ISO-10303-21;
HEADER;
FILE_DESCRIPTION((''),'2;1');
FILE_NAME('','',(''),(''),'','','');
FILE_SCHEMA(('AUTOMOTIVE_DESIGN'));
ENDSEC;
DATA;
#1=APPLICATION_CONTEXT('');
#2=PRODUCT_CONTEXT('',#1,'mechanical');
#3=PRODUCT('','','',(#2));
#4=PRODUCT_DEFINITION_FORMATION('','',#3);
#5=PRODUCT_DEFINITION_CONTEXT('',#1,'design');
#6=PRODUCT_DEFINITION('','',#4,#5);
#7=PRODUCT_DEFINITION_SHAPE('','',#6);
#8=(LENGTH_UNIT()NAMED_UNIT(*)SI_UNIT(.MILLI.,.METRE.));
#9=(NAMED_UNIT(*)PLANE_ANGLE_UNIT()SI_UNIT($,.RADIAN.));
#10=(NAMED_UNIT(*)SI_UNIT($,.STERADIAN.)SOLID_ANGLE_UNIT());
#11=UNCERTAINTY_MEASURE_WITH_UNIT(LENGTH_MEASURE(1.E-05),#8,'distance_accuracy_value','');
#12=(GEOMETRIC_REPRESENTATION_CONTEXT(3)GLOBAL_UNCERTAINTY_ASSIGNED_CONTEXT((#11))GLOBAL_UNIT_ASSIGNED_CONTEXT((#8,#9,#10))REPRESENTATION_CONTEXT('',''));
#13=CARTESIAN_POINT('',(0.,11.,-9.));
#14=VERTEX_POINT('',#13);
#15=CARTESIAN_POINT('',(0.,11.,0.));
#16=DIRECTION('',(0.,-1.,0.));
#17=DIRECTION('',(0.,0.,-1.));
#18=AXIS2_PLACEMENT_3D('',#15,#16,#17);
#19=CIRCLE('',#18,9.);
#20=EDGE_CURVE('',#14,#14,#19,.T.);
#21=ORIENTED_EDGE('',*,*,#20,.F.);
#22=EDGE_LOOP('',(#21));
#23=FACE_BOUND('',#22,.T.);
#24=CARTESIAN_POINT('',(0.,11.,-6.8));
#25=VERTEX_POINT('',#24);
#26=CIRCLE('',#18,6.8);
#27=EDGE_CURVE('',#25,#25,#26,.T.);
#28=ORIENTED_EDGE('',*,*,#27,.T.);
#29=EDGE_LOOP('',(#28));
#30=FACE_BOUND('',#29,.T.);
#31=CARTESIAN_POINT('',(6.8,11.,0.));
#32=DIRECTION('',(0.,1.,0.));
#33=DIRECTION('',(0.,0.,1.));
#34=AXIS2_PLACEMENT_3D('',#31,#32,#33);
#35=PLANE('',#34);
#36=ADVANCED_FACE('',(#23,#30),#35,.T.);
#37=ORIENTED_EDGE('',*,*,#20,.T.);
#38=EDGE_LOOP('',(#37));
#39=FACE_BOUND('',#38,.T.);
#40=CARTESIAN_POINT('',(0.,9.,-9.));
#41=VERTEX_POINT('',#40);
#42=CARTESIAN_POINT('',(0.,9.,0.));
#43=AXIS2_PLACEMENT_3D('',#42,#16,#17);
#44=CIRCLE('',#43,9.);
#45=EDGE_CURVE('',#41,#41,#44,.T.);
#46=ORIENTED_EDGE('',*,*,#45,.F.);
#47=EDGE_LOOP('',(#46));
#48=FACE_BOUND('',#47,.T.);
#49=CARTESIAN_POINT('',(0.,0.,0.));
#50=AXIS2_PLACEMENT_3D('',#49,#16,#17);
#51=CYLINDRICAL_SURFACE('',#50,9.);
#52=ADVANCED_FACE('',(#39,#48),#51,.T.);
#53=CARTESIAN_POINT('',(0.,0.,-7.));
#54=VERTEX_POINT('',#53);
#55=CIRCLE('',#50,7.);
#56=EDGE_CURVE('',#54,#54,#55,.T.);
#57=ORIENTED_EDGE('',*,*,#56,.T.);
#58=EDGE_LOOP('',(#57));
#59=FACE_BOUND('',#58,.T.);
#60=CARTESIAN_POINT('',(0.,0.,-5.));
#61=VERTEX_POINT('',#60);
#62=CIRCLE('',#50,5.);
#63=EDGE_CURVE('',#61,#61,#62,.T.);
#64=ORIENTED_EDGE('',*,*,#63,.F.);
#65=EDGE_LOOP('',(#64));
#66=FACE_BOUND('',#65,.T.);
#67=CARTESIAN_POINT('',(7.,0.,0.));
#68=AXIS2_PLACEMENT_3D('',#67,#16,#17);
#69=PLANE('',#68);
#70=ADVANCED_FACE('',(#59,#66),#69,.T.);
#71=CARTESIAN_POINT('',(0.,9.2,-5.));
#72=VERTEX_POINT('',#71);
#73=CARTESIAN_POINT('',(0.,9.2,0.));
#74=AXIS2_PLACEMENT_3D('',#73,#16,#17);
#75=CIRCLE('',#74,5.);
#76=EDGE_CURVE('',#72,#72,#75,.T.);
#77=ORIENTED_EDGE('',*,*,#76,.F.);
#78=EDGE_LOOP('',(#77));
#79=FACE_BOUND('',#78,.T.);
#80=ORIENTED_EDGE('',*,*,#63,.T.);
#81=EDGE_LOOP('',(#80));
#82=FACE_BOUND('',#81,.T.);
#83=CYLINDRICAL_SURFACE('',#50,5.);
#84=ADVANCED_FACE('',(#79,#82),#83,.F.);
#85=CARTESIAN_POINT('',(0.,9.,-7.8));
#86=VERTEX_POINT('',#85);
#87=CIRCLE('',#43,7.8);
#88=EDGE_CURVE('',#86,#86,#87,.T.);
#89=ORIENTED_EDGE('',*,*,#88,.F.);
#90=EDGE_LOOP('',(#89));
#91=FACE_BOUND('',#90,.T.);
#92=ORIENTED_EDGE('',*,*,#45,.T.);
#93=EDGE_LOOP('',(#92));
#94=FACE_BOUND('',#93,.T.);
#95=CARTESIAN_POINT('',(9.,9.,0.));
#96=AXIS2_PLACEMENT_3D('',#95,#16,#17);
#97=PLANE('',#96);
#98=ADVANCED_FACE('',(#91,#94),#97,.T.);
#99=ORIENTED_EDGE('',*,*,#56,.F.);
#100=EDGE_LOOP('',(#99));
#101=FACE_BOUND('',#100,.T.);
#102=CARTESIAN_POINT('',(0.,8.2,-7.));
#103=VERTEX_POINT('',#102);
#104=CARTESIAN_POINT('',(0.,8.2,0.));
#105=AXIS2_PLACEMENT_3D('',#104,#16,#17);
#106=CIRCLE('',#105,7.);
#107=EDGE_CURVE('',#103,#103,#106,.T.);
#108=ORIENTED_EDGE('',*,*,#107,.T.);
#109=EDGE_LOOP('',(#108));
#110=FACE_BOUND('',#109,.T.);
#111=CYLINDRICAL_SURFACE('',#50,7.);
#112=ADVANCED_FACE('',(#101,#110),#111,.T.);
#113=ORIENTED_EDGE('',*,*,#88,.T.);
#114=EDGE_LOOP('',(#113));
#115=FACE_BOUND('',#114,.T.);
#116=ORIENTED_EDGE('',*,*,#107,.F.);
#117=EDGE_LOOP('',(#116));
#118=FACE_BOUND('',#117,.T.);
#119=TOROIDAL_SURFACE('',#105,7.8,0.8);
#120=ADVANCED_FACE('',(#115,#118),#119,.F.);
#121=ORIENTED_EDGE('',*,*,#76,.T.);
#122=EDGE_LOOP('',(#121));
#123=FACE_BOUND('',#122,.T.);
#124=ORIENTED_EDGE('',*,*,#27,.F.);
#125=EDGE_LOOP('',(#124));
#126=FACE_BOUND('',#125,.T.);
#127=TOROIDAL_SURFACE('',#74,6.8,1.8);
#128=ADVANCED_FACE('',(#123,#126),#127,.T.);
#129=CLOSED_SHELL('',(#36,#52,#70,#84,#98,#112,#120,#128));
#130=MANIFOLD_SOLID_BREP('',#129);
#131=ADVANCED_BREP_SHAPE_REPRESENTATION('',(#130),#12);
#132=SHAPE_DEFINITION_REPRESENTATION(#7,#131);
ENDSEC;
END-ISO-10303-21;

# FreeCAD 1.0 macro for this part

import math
import FreeCAD as App
import Part
import Sketcher

doc = App.newDocument("Part")
body = doc.addObject("PartDesign::Body", "Body")

# Sketch on XY plane
sketch1 = body.newObject("Sketcher::SketchObject", "Sketch")
sketch1.AttachmentSupport = (doc.getObject("XY_Plane"), [""])
sketch1.MapMode = "FlatFace"
sketch1.addGeometry(Part.LineSegment(App.Vector(5, 9.2, 0), App.Vector(5, 0, 0)), False)
sketch1.addGeometry(Part.LineSegment(App.Vector(5, 0, 0), App.Vector(7, 0, 0)), False)
sketch1.addGeometry(Part.LineSegment(App.Vector(7, 0, 0), App.Vector(7, 8.2, 0)), False)
sketch1.addGeometry(Part.ArcOfCircle(Part.Circle(App.Vector(7.8, 8.2, 0), App.Vector(0, 0, 1), 0.8), math.radians(90), math.radians(180)), False)
sketch1.addGeometry(Part.LineSegment(App.Vector(7.8, 9, 0), App.Vector(9, 9, 0)), False)
sketch1.addGeometry(Part.LineSegment(App.Vector(9, 9, 0), App.Vector(9, 11, 0)), False)
sketch1.addGeometry(Part.LineSegment(App.Vector(9, 11, 0), App.Vector(6.8, 11, 0)), False)
sketch1.addGeometry(Part.ArcOfCircle(Part.Circle(App.Vector(6.8, 9.2, 0), App.Vector(0, 0, 1), 1.8), math.radians(90), math.radians(180)), False)
sketch1.addConstraint(Sketcher.Constraint("Coincident", 0, 2, 1, 1))
sketch1.addConstraint(Sketcher.Constraint("Coincident", 1, 2, 2, 1))
sketch1.addConstraint(Sketcher.Constraint("Tangent", 2, 2, 3, 2))
sketch1.addConstraint(Sketcher.Constraint("Tangent", 3, 1, 4, 1))
sketch1.addConstraint(Sketcher.Constraint("Coincident", 4, 2, 5, 1))
sketch1.addConstraint(Sketcher.Constraint("Coincident", 5, 2, 6, 1))
sketch1.addConstraint(Sketcher.Constraint("Tangent", 6, 2, 7, 1))
sketch1.addConstraint(Sketcher.Constraint("Tangent", 7, 2, 0, 1))
sketch1.addConstraint(Sketcher.Constraint("Vertical", 0))
sketch1.addConstraint(Sketcher.Constraint("Horizontal", 1))
sketch1.addConstraint(Sketcher.Constraint("Vertical", 2))
sketch1.addConstraint(Sketcher.Constraint("Horizontal", 4))
sketch1.addConstraint(Sketcher.Constraint("Vertical", 5))
sketch1.addConstraint(Sketcher.Constraint("Horizontal", 6))
sketch1.addConstraint(Sketcher.Constraint("PointOnObject", 0, 2, -1))
sketch1.addConstraint(Sketcher.Constraint("Equal", 1, 5))
sketch1.addConstraint(Sketcher.Constraint("Radius", 3, 0.8))
sketch1.addConstraint(Sketcher.Constraint("Radius", 7, 1.8))
sketch1.addConstraint(Sketcher.Constraint("DistanceX", 1, 1, 1, 2, 2.0))
sketch1.addConstraint(Sketcher.Constraint("DistanceX", 4, 1, 4, 2, 1.2))
sketch1.addConstraint(Sketcher.Constraint("DistanceY", 0, 2, 0, 1, 9.2))
sketch1.addConstraint(Sketcher.Constraint("DistanceX", -1, 1, 0, 2, 5.0))
revolution = body.newObject("PartDesign::Revolution", "Revolution")
revolution.Profile = sketch1
revolution.ReferenceAxis = (sketch1, ["V_Axis"])
revolution.Angle = 360

doc.recompute()
